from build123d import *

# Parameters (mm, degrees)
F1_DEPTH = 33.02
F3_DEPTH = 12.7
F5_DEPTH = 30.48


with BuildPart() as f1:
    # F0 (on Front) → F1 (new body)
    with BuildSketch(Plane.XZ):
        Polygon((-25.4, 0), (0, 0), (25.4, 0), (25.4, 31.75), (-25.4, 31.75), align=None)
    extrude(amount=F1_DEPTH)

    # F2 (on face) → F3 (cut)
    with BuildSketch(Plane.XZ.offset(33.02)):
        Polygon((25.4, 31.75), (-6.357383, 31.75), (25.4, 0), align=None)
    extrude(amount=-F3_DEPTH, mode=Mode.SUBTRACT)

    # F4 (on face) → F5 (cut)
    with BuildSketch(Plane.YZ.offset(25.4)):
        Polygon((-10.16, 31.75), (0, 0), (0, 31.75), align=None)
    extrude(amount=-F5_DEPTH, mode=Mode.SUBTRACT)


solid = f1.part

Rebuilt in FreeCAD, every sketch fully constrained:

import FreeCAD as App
import Part
import Sketcher
from FreeCAD import Vector
Q = App.Units.Quantity


def add_polygon(sketch, points):
    """Adds a closed chain of lines whose ends are joined by coincident constraints."""
    first, n = sketch.GeometryCount, len(points)
    for a, b in zip(points, points[1:] + points[:1]):
        sketch.addGeometry(Part.LineSegment(App.Vector(*a, 0), App.Vector(*b, 0)), False)
    for i in range(n):
        sketch.addConstraint(Sketcher.Constraint("Coincident", first + i, 2, first + (i + 1) % n, 1))

doc = App.newDocument("Part")
params = doc.addObject("Spreadsheet::Sheet", "Params")
for row, (alias, value) in enumerate([
    ("sketch1_width", "2 in"),
    ("sketch1_height", "1.25 in"),
    ("pad1_length", "1.3 in"),
    ("sketch2_height", "1.25 in"),
    ("pocket1_length", "0.5 in"),
    ("sketch3_width", "0.4 in"),
    ("sketch3_height", "1.25 in"),
    ("pocket2_length", "1.2 in"),
], start=1):
    params.set(f"A{row}", alias)
    params.set(f"B{row}", "=" + value)
    params.setAlias(f"B{row}", alias)

body = doc.addObject("PartDesign::Body", "Body")

# Sketch on XZ plane
sketch1 = body.newObject("Sketcher::SketchObject", "Sketch")
sketch1.AttachmentSupport = (doc.getObject("XZ_Plane"), [""])
sketch1.MapMode = "FlatFace"
add_polygon(sketch1, [(-25.4, 0), (25.4, 0), (25.4, 31.75), (-25.4, 31.75)])  # lines 0-3
sketch1.addConstraint(Sketcher.Constraint("Horizontal", 0))
sketch1.addConstraint(Sketcher.Constraint("Vertical", 1))
sketch1.addConstraint(Sketcher.Constraint("Horizontal", 2))
sketch1.addConstraint(Sketcher.Constraint("Vertical", 3))
sketch1.addConstraint(Sketcher.Constraint("Symmetric", 0, 2, 3, 2, -1, 1))
sketch1.addConstraint(Sketcher.Constraint("DistanceX", 0, 1, 0, 2, Q("2 in")))
sketch1.addConstraint(Sketcher.Constraint("DistanceY", 1, 1, 1, 2, Q("1.25 in")))
sketch1.setExpression("Constraints[9]", "Params.sketch1_width")
sketch1.setExpression("Constraints[10]", "Params.sketch1_height")
pad1 = body.newObject("PartDesign::Pad", "Pad")
pad1.Profile = sketch1
pad1.setExpression("Length", "Params.pad1_length")

# Sketch on XZ plane
sketch2 = body.newObject("Sketcher::SketchObject", "Sketch001")
sketch2.AttachmentSupport = (doc.getObject("XZ_Plane"), [""])
sketch2.MapMode = "FlatFace"
sketch2.AttachmentOffset = App.Placement(Vector(0, 0, 1.3 * 25.4), App.Rotation())
add_polygon(sketch2, [(25.4, 31.75), (-6.357383, 31.75), (25.4, 0)])  # lines 0-2
sketch2.addConstraint(Sketcher.Constraint("Horizontal", 0))
sketch2.addConstraint(Sketcher.Constraint("Vertical", 2))
sketch2.addConstraint(Sketcher.Constraint("PointOnObject", 1, 2, -1))
sketch2.addConstraint(Sketcher.Constraint("DistanceX", -1, 1, 1, 2, Q("1 in")))
sketch2.addConstraint(Sketcher.Constraint("DistanceY", 2, 1, 2, 2, Q("1.25 in")))
sketch2.addConstraint(Sketcher.Constraint("Distance", 1, 44.906501))
sketch2.setExpression("Constraints[7]", "Params.sketch2_height")
pocket1 = body.newObject("PartDesign::Pocket", "Pocket")
pocket1.Profile = sketch2
pocket1.setExpression("Length", "Params.pocket1_length")

# Sketch on YZ plane
sketch3 = body.newObject("Sketcher::SketchObject", "Sketch002")
sketch3.AttachmentSupport = (doc.getObject("YZ_Plane"), [""])
sketch3.MapMode = "FlatFace"
sketch3.AttachmentOffset = App.Placement(Vector(0, 0, 1 * 25.4), App.Rotation())
add_polygon(sketch3, [(-10.16, 31.75), (0, 0), (0, 31.75)])  # lines 0-2
sketch3.addConstraint(Sketcher.Constraint("Vertical", 1))
sketch3.addConstraint(Sketcher.Constraint("Horizontal", 2))
sketch3.addConstraint(Sketcher.Constraint("Coincident", 0, 2, -1, 1))
sketch3.addConstraint(Sketcher.Constraint("DistanceX", 2, 2, 2, 1, Q("0.4 in")))
sketch3.addConstraint(Sketcher.Constraint("DistanceY", 1, 1, 1, 2, Q("1.25 in")))
sketch3.setExpression("Constraints[6]", "Params.sketch3_width")
sketch3.setExpression("Constraints[7]", "Params.sketch3_height")
pocket2 = body.newObject("PartDesign::Pocket", "Pocket001")
pocket2.Profile = sketch3
pocket2.setExpression("Length", "Params.pocket2_length")

doc.recompute()
